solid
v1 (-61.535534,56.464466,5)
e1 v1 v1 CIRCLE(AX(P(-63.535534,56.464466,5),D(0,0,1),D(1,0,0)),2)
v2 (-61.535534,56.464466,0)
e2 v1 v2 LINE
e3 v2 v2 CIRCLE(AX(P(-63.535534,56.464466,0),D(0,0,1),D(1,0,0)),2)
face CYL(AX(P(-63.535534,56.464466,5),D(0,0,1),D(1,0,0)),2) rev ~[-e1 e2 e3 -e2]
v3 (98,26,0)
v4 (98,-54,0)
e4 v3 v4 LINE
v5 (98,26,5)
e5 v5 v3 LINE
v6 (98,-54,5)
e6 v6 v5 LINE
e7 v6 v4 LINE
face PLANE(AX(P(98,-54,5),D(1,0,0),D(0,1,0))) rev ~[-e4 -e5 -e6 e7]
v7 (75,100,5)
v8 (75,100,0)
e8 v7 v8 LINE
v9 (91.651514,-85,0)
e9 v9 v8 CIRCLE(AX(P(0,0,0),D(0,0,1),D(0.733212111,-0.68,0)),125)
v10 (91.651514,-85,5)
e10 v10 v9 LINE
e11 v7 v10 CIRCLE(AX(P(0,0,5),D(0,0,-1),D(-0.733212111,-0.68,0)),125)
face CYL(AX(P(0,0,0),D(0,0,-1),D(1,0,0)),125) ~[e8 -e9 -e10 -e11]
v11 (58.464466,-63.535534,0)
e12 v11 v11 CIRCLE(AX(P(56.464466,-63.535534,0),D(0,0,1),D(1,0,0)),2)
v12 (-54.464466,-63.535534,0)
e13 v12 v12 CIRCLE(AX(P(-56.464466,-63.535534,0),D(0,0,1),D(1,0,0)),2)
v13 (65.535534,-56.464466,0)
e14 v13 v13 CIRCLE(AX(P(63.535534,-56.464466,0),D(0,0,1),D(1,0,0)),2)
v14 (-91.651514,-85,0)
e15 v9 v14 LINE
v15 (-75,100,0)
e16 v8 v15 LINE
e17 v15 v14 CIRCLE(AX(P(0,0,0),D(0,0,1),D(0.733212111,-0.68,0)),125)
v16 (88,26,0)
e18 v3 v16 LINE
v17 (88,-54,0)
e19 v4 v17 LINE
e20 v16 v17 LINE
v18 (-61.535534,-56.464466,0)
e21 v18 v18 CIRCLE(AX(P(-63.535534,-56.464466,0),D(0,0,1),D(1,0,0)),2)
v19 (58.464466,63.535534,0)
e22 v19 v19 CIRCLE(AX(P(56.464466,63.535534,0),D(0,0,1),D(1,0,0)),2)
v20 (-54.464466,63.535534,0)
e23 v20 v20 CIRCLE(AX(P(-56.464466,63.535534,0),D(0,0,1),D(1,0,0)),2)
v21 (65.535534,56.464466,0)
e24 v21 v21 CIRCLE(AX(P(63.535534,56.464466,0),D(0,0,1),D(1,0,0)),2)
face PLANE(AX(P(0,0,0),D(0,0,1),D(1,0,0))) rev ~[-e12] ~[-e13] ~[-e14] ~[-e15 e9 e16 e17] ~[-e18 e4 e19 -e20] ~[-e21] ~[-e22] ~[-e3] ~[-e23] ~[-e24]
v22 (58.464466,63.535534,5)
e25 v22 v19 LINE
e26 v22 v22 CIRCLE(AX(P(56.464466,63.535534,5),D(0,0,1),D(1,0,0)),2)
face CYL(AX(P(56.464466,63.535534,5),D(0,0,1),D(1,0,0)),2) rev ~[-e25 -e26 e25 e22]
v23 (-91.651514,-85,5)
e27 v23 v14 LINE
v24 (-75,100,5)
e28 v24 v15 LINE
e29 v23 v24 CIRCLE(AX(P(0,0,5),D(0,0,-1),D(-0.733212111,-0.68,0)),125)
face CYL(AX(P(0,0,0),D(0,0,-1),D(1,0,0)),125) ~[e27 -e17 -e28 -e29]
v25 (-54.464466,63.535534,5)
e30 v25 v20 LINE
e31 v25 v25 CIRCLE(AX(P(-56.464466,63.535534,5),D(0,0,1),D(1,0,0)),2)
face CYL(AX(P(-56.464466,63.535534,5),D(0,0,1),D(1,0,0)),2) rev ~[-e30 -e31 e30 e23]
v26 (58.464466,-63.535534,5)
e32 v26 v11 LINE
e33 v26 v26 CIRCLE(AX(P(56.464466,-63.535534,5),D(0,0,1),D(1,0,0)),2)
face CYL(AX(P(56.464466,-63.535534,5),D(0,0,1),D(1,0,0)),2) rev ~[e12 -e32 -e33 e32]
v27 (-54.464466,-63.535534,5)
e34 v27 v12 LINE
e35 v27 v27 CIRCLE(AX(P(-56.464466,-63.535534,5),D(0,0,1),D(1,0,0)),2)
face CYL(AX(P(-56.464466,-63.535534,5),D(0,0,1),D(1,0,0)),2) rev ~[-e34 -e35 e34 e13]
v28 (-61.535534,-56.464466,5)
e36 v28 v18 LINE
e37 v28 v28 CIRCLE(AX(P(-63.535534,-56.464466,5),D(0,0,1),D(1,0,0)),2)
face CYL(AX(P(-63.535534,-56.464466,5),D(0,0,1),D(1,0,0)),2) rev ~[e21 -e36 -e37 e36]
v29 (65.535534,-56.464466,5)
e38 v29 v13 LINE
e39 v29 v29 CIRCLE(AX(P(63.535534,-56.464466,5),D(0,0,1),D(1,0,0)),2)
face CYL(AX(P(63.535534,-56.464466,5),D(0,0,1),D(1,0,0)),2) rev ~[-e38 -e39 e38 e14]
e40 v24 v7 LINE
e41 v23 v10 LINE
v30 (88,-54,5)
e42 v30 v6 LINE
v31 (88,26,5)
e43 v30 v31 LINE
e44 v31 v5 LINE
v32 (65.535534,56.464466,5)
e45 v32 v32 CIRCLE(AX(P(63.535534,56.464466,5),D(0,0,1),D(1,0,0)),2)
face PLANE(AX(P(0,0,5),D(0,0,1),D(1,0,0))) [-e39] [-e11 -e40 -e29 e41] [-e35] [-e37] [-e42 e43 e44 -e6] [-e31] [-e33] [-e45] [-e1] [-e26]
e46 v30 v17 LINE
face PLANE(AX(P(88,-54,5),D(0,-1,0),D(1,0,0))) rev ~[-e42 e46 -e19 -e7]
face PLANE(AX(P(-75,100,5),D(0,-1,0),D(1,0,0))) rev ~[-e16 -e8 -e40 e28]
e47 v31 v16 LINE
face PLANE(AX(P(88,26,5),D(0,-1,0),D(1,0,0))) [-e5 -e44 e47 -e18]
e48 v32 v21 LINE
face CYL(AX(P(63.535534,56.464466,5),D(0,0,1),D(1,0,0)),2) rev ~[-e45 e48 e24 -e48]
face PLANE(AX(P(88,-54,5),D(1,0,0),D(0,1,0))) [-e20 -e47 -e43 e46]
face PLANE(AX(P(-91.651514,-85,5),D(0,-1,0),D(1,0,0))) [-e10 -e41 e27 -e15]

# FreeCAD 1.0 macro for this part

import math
import FreeCAD as App
import Part
import Sketcher
from FreeCAD import Vector
Q = App.Units.Quantity

doc = App.newDocument("Part")
body = doc.addObject("PartDesign::Body", "Body")

sketch1 = body.newObject("Sketcher::SketchObject", "Sketch")
sketch1.AttachmentSupport = (doc.getObject("XY_Plane"), [""])
sketch1.MapMode = "FlatFace"
sketch1.addGeometry(Part.Circle(Vector(0, 0, 0), Vector(0, 0, 1), 125), False)
sketch1.addConstraint(Sketcher.Constraint("Coincident", 0, 3, -1, 1))
sketch1.addConstraint(Sketcher.Constraint("Diameter", 0, Q("250 mm")))
pad1 = body.newObject("PartDesign::Pad", "Pad")
pad1.Profile = sketch1
pad1.Length = 5

sketch2 = body.newObject("Sketcher::SketchObject", "Sketch001")
sketch2.AttachmentSupport = (doc.getObject("XY_Plane"), [""])
sketch2.MapMode = "FlatFace"
sketch2.AttachmentOffset = App.Placement(Vector(0, 0, 5), App.Rotation())
sketch2.addGeometry(Part.Circle(Vector(-56.5, -63.5, 0), Vector(0, 0, 1), 2), False)
sketch2.addConstraint(Sketcher.Constraint("Diameter", 0, Q("4 mm")))
sketch2.addConstraint(Sketcher.Constraint("DistanceX", 0, 3, -1, 1, Q("56.464466 mm")))
sketch2.addConstraint(Sketcher.Constraint("DistanceY", 0, 3, -1, 1, Q("63.535534 mm")))
pocket1 = body.newObject("PartDesign::Pocket", "Pocket")
pocket1.Profile = sketch2
pocket1.Type = "UpToFirst"

sketch3 = body.newObject("Sketcher::SketchObject", "Sketch002")
sketch3.AttachmentSupport = (doc.getObject("XY_Plane"), [""])
sketch3.MapMode = "FlatFace"
sketch3.AttachmentOffset = App.Placement(Vector(0, 0, 5), App.Rotation())
sketch3.addGeometry(Part.Circle(Vector(-63.5, -56.5, 0), Vector(0, 0, 1), 2), False)
sketch3.addConstraint(Sketcher.Constraint("Diameter", 0, Q("4 mm")))
sketch3.addConstraint(Sketcher.Constraint("DistanceX", 0, 3, -1, 1, Q("63.535534 mm")))
sketch3.addConstraint(Sketcher.Constraint("DistanceY", 0, 3, -1, 1, Q("56.464466 mm")))
pocket2 = body.newObject("PartDesign::Pocket", "Pocket001")
pocket2.Profile = sketch3
pocket2.Type = "UpToFirst"

sketch4 = body.newObject("Sketcher::SketchObject", "Sketch003")
sketch4.AttachmentSupport = (doc.getObject("XY_Plane"), [""])
sketch4.MapMode = "FlatFace"
sketch4.AttachmentOffset = App.Placement(Vector(0, 0, 5), App.Rotation())
sketch4.addGeometry(Part.Circle(Vector(-56.5, 63.5, 0), Vector(0, 0, 1), 2), False)
sketch4.addConstraint(Sketcher.Constraint("Diameter", 0, Q("4 mm")))
sketch4.addConstraint(Sketcher.Constraint("DistanceX", 0, 3, -1, 1, Q("56.464466 mm")))
sketch4.addConstraint(Sketcher.Constraint("DistanceY", -1, 1, 0, 3, Q("63.535534 mm")))
pocket3 = body.newObject("PartDesign::Pocket", "Pocket002")
pocket3.Profile = sketch4
pocket3.Type = "UpToFirst"

sketch5 = body.newObject("Sketcher::SketchObject", "Sketch004")
sketch5.AttachmentSupport = (doc.getObject("XY_Plane"), [""])
sketch5.MapMode = "FlatFace"
sketch5.AttachmentOffset = App.Placement(Vector(0, 0, 5), App.Rotation())
sketch5.addGeometry(Part.Circle(Vector(-63.5, 56.5, 0), Vector(0, 0, 1), 2), False)
sketch5.addConstraint(Sketcher.Constraint("Diameter", 0, Q("4 mm")))
sketch5.addConstraint(Sketcher.Constraint("DistanceX", 0, 3, -1, 1, Q("63.535534 mm")))
sketch5.addConstraint(Sketcher.Constraint("DistanceY", -1, 1, 0, 3, Q("56.464466 mm")))
pocket4 = body.newObject("PartDesign::Pocket", "Pocket003")
pocket4.Profile = sketch5
pocket4.Type = "UpToFirst"

sketch6 = body.newObject("Sketcher::SketchObject", "Sketch005")
sketch6.AttachmentSupport = (doc.getObject("XY_Plane"), [""])
sketch6.MapMode = "FlatFace"
sketch6.AttachmentOffset = App.Placement(Vector(0, 0, 5), App.Rotation())
sketch6.addGeometry(Part.Circle(Vector(56.5, 63.5, 0), Vector(0, 0, 1), 2), False)
sketch6.addConstraint(Sketcher.Constraint("Diameter", 0, Q("4 mm")))
sketch6.addConstraint(Sketcher.Constraint("DistanceX", -1, 1, 0, 3, Q("56.464466 mm")))
sketch6.addConstraint(Sketcher.Constraint("DistanceY", -1, 1, 0, 3, Q("63.535534 mm")))
pocket5 = body.newObject("PartDesign::Pocket", "Pocket004")
pocket5.Profile = sketch6
pocket5.Type = "UpToFirst"

sketch7 = body.newObject("Sketcher::SketchObject", "Sketch006")
sketch7.AttachmentSupport = (doc.getObject("XY_Plane"), [""])
sketch7.MapMode = "FlatFace"
sketch7.AttachmentOffset = App.Placement(Vector(0, 0, 5), App.Rotation())
sketch7.addGeometry(Part.Circle(Vector(63.5, 56.5, 0), Vector(0, 0, 1), 2), False)
sketch7.addConstraint(Sketcher.Constraint("Diameter", 0, Q("4 mm")))
sketch7.addConstraint(Sketcher.Constraint("DistanceX", -1, 1, 0, 3, Q("63.535534 mm")))
sketch7.addConstraint(Sketcher.Constraint("DistanceY", -1, 1, 0, 3, Q("56.464466 mm")))
pocket6 = body.newObject("PartDesign::Pocket", "Pocket005")
pocket6.Profile = sketch7
pocket6.Type = "UpToFirst"

sketch8 = body.newObject("Sketcher::SketchObject", "Sketch007")
sketch8.AttachmentSupport = (doc.getObject("XY_Plane"), [""])
sketch8.MapMode = "FlatFace"
sketch8.AttachmentOffset = App.Placement(Vector(0, 0, 5), App.Rotation())
sketch8.addGeometry(Part.Circle(Vector(63.5, -56.5, 0), Vector(0, 0, 1), 2), False)
sketch8.addConstraint(Sketcher.Constraint("Diameter", 0, Q("4 mm")))
sketch8.addConstraint(Sketcher.Constraint("DistanceX", -1, 1, 0, 3, Q("63.535534 mm")))
sketch8.addConstraint(Sketcher.Constraint("DistanceY", 0, 3, -1, 1, Q("56.464466 mm")))
pocket7 = body.newObject("PartDesign::Pocket", "Pocket006")
pocket7.Profile = sketch8
pocket7.Type = "UpToFirst"

sketch9 = body.newObject("Sketcher::SketchObject", "Sketch008")
sketch9.AttachmentSupport = (doc.getObject("XY_Plane"), [""])
sketch9.MapMode = "FlatFace"
sketch9.AttachmentOffset = App.Placement(Vector(0, 0, 5), App.Rotation())
sketch9.addGeometry(Part.Circle(Vector(56.5, -63.5, 0), Vector(0, 0, 1), 2), False)
sketch9.addConstraint(Sketcher.Constraint("Diameter", 0, Q("4 mm")))
sketch9.addConstraint(Sketcher.Constraint("DistanceX", -1, 1, 0, 3, Q("56.464466 mm")))
sketch9.addConstraint(Sketcher.Constraint("DistanceY", 0, 3, -1, 1, Q("63.535534 mm")))
pocket8 = body.newObject("PartDesign::Pocket", "Pocket007")
pocket8.Profile = sketch9
pocket8.Type = "UpToFirst"

sketch10 = body.newObject("Sketcher::SketchObject", "Sketch009")
sketch10.AttachmentSupport = (doc.getObject("XY_Plane"), [""])
sketch10.MapMode = "FlatFace"
sketch10.AttachmentOffset = App.Placement(Vector(0, 0, 5), App.Rotation())
sketch10.addGeometry(Part.LineSegment(Vector(92, -85, 0), Vector(-92, -85, 0)), False)
sketch10.addGeometry(Part.ArcOfCircle(Part.Circle(Vector(0, 0, 0), Vector(0, 0, 1), 125), math.radians(-137), math.radians(-43)), False)
sketch10.addConstraint(Sketcher.Constraint("Coincident", 0, 1, 1, 2))
sketch10.addConstraint(Sketcher.Constraint("Coincident", 1, 1, 0, 2))
sketch10.addConstraint(Sketcher.Constraint("Horizontal", 0))
sketch10.addConstraint(Sketcher.Constraint("Coincident", 1, 3, -1, 1))
sketch10.addConstraint(Sketcher.Constraint("Radius", 1, Q("125 mm")))
sketch10.addConstraint(Sketcher.Constraint("DistanceY", 0, 1, -1, 1, Q("85 mm")))
pocket9 = body.newObject("PartDesign::Pocket", "Pocket008")
pocket9.Profile = sketch10
pocket9.Type = "UpToFirst"

sketch11 = body.newObject("Sketcher::SketchObject", "Sketch010")
sketch11.AttachmentSupport = (doc.getObject("XY_Plane"), [""])
sketch11.MapMode = "FlatFace"
sketch11.AttachmentOffset = App.Placement(Vector(0, 0, 5), App.Rotation())
sketch11.addGeometry(Part.LineSegment(Vector(88, 26, 0), Vector(88, -54, 0)), False)
sketch11.addGeometry(Part.LineSegment(Vector(88, -54, 0), Vector(98, -54, 0)), False)
sketch11.addGeometry(Part.LineSegment(Vector(98, -54, 0), Vector(98, 26, 0)), False)
sketch11.addGeometry(Part.LineSegment(Vector(98, 26, 0), Vector(88, 26, 0)), False)
sketch11.addConstraint(Sketcher.Constraint("Coincident", 0, 2, 1, 1))
sketch11.addConstraint(Sketcher.Constraint("Coincident", 1, 2, 2, 1))
sketch11.addConstraint(Sketcher.Constraint("Coincident", 2, 2, 3, 1))
sketch11.addConstraint(Sketcher.Constraint("Coincident", 3, 2, 0, 1))
sketch11.addConstraint(Sketcher.Constraint("Vertical", 0))
sketch11.addConstraint(Sketcher.Constraint("Horizontal", 1))
sketch11.addConstraint(Sketcher.Constraint("Vertical", 2))
sketch11.addConstraint(Sketcher.Constraint("Horizontal", 3))
sketch11.addConstraint(Sketcher.Constraint("DistanceX", 1, 1, 1, 2, Q("10 mm")))
sketch11.addConstraint(Sketcher.Constraint("DistanceY", 0, 2, 0, 1, Q("80 mm")))
sketch11.addConstraint(Sketcher.Constraint("DistanceX", -1, 1, 0, 2, Q("88 mm")))
sketch11.addConstraint(Sketcher.Constraint("DistanceY", 0, 2, -1, 1, Q("54 mm")))
pocket10 = body.newObject("PartDesign::Pocket", "Pocket009")
pocket10.Profile = sketch11
pocket10.Type = "UpToFirst"

sketch12 = body.newObject("Sketcher::SketchObject", "Sketch011")
sketch12.AttachmentSupport = (doc.getObject("XY_Plane"), [""])
sketch12.MapMode = "FlatFace"
sketch12.AttachmentOffset = App.Placement(Vector(0, 0, 5), App.Rotation())
sketch12.addGeometry(Part.ArcOfCircle(Part.Circle(Vector(0, 0, 0), Vector(0, 0, 1), 125), math.radians(53), math.radians(127)), False)
sketch12.addGeometry(Part.LineSegment(Vector(-75, 100, 0), Vector(75, 100, 0)), False)
sketch12.addConstraint(Sketcher.Constraint("Coincident", 0, 1, 1, 2))
sketch12.addConstraint(Sketcher.Constraint("Coincident", 1, 1, 0, 2))
sketch12.addConstraint(Sketcher.Constraint("Horizontal", 1))
sketch12.addConstraint(Sketcher.Constraint("Coincident", 0, 3, -1, 1))
sketch12.addConstraint(Sketcher.Constraint("Radius", 0, Q("125 mm")))
sketch12.addConstraint(Sketcher.Constraint("DistanceX", 1, 1, 1, 2, Q("150 mm")))
pocket11 = body.newObject("PartDesign::Pocket", "Pocket010")
pocket11.Profile = sketch12
pocket11.Type = "UpToFirst"

doc.recompute()
